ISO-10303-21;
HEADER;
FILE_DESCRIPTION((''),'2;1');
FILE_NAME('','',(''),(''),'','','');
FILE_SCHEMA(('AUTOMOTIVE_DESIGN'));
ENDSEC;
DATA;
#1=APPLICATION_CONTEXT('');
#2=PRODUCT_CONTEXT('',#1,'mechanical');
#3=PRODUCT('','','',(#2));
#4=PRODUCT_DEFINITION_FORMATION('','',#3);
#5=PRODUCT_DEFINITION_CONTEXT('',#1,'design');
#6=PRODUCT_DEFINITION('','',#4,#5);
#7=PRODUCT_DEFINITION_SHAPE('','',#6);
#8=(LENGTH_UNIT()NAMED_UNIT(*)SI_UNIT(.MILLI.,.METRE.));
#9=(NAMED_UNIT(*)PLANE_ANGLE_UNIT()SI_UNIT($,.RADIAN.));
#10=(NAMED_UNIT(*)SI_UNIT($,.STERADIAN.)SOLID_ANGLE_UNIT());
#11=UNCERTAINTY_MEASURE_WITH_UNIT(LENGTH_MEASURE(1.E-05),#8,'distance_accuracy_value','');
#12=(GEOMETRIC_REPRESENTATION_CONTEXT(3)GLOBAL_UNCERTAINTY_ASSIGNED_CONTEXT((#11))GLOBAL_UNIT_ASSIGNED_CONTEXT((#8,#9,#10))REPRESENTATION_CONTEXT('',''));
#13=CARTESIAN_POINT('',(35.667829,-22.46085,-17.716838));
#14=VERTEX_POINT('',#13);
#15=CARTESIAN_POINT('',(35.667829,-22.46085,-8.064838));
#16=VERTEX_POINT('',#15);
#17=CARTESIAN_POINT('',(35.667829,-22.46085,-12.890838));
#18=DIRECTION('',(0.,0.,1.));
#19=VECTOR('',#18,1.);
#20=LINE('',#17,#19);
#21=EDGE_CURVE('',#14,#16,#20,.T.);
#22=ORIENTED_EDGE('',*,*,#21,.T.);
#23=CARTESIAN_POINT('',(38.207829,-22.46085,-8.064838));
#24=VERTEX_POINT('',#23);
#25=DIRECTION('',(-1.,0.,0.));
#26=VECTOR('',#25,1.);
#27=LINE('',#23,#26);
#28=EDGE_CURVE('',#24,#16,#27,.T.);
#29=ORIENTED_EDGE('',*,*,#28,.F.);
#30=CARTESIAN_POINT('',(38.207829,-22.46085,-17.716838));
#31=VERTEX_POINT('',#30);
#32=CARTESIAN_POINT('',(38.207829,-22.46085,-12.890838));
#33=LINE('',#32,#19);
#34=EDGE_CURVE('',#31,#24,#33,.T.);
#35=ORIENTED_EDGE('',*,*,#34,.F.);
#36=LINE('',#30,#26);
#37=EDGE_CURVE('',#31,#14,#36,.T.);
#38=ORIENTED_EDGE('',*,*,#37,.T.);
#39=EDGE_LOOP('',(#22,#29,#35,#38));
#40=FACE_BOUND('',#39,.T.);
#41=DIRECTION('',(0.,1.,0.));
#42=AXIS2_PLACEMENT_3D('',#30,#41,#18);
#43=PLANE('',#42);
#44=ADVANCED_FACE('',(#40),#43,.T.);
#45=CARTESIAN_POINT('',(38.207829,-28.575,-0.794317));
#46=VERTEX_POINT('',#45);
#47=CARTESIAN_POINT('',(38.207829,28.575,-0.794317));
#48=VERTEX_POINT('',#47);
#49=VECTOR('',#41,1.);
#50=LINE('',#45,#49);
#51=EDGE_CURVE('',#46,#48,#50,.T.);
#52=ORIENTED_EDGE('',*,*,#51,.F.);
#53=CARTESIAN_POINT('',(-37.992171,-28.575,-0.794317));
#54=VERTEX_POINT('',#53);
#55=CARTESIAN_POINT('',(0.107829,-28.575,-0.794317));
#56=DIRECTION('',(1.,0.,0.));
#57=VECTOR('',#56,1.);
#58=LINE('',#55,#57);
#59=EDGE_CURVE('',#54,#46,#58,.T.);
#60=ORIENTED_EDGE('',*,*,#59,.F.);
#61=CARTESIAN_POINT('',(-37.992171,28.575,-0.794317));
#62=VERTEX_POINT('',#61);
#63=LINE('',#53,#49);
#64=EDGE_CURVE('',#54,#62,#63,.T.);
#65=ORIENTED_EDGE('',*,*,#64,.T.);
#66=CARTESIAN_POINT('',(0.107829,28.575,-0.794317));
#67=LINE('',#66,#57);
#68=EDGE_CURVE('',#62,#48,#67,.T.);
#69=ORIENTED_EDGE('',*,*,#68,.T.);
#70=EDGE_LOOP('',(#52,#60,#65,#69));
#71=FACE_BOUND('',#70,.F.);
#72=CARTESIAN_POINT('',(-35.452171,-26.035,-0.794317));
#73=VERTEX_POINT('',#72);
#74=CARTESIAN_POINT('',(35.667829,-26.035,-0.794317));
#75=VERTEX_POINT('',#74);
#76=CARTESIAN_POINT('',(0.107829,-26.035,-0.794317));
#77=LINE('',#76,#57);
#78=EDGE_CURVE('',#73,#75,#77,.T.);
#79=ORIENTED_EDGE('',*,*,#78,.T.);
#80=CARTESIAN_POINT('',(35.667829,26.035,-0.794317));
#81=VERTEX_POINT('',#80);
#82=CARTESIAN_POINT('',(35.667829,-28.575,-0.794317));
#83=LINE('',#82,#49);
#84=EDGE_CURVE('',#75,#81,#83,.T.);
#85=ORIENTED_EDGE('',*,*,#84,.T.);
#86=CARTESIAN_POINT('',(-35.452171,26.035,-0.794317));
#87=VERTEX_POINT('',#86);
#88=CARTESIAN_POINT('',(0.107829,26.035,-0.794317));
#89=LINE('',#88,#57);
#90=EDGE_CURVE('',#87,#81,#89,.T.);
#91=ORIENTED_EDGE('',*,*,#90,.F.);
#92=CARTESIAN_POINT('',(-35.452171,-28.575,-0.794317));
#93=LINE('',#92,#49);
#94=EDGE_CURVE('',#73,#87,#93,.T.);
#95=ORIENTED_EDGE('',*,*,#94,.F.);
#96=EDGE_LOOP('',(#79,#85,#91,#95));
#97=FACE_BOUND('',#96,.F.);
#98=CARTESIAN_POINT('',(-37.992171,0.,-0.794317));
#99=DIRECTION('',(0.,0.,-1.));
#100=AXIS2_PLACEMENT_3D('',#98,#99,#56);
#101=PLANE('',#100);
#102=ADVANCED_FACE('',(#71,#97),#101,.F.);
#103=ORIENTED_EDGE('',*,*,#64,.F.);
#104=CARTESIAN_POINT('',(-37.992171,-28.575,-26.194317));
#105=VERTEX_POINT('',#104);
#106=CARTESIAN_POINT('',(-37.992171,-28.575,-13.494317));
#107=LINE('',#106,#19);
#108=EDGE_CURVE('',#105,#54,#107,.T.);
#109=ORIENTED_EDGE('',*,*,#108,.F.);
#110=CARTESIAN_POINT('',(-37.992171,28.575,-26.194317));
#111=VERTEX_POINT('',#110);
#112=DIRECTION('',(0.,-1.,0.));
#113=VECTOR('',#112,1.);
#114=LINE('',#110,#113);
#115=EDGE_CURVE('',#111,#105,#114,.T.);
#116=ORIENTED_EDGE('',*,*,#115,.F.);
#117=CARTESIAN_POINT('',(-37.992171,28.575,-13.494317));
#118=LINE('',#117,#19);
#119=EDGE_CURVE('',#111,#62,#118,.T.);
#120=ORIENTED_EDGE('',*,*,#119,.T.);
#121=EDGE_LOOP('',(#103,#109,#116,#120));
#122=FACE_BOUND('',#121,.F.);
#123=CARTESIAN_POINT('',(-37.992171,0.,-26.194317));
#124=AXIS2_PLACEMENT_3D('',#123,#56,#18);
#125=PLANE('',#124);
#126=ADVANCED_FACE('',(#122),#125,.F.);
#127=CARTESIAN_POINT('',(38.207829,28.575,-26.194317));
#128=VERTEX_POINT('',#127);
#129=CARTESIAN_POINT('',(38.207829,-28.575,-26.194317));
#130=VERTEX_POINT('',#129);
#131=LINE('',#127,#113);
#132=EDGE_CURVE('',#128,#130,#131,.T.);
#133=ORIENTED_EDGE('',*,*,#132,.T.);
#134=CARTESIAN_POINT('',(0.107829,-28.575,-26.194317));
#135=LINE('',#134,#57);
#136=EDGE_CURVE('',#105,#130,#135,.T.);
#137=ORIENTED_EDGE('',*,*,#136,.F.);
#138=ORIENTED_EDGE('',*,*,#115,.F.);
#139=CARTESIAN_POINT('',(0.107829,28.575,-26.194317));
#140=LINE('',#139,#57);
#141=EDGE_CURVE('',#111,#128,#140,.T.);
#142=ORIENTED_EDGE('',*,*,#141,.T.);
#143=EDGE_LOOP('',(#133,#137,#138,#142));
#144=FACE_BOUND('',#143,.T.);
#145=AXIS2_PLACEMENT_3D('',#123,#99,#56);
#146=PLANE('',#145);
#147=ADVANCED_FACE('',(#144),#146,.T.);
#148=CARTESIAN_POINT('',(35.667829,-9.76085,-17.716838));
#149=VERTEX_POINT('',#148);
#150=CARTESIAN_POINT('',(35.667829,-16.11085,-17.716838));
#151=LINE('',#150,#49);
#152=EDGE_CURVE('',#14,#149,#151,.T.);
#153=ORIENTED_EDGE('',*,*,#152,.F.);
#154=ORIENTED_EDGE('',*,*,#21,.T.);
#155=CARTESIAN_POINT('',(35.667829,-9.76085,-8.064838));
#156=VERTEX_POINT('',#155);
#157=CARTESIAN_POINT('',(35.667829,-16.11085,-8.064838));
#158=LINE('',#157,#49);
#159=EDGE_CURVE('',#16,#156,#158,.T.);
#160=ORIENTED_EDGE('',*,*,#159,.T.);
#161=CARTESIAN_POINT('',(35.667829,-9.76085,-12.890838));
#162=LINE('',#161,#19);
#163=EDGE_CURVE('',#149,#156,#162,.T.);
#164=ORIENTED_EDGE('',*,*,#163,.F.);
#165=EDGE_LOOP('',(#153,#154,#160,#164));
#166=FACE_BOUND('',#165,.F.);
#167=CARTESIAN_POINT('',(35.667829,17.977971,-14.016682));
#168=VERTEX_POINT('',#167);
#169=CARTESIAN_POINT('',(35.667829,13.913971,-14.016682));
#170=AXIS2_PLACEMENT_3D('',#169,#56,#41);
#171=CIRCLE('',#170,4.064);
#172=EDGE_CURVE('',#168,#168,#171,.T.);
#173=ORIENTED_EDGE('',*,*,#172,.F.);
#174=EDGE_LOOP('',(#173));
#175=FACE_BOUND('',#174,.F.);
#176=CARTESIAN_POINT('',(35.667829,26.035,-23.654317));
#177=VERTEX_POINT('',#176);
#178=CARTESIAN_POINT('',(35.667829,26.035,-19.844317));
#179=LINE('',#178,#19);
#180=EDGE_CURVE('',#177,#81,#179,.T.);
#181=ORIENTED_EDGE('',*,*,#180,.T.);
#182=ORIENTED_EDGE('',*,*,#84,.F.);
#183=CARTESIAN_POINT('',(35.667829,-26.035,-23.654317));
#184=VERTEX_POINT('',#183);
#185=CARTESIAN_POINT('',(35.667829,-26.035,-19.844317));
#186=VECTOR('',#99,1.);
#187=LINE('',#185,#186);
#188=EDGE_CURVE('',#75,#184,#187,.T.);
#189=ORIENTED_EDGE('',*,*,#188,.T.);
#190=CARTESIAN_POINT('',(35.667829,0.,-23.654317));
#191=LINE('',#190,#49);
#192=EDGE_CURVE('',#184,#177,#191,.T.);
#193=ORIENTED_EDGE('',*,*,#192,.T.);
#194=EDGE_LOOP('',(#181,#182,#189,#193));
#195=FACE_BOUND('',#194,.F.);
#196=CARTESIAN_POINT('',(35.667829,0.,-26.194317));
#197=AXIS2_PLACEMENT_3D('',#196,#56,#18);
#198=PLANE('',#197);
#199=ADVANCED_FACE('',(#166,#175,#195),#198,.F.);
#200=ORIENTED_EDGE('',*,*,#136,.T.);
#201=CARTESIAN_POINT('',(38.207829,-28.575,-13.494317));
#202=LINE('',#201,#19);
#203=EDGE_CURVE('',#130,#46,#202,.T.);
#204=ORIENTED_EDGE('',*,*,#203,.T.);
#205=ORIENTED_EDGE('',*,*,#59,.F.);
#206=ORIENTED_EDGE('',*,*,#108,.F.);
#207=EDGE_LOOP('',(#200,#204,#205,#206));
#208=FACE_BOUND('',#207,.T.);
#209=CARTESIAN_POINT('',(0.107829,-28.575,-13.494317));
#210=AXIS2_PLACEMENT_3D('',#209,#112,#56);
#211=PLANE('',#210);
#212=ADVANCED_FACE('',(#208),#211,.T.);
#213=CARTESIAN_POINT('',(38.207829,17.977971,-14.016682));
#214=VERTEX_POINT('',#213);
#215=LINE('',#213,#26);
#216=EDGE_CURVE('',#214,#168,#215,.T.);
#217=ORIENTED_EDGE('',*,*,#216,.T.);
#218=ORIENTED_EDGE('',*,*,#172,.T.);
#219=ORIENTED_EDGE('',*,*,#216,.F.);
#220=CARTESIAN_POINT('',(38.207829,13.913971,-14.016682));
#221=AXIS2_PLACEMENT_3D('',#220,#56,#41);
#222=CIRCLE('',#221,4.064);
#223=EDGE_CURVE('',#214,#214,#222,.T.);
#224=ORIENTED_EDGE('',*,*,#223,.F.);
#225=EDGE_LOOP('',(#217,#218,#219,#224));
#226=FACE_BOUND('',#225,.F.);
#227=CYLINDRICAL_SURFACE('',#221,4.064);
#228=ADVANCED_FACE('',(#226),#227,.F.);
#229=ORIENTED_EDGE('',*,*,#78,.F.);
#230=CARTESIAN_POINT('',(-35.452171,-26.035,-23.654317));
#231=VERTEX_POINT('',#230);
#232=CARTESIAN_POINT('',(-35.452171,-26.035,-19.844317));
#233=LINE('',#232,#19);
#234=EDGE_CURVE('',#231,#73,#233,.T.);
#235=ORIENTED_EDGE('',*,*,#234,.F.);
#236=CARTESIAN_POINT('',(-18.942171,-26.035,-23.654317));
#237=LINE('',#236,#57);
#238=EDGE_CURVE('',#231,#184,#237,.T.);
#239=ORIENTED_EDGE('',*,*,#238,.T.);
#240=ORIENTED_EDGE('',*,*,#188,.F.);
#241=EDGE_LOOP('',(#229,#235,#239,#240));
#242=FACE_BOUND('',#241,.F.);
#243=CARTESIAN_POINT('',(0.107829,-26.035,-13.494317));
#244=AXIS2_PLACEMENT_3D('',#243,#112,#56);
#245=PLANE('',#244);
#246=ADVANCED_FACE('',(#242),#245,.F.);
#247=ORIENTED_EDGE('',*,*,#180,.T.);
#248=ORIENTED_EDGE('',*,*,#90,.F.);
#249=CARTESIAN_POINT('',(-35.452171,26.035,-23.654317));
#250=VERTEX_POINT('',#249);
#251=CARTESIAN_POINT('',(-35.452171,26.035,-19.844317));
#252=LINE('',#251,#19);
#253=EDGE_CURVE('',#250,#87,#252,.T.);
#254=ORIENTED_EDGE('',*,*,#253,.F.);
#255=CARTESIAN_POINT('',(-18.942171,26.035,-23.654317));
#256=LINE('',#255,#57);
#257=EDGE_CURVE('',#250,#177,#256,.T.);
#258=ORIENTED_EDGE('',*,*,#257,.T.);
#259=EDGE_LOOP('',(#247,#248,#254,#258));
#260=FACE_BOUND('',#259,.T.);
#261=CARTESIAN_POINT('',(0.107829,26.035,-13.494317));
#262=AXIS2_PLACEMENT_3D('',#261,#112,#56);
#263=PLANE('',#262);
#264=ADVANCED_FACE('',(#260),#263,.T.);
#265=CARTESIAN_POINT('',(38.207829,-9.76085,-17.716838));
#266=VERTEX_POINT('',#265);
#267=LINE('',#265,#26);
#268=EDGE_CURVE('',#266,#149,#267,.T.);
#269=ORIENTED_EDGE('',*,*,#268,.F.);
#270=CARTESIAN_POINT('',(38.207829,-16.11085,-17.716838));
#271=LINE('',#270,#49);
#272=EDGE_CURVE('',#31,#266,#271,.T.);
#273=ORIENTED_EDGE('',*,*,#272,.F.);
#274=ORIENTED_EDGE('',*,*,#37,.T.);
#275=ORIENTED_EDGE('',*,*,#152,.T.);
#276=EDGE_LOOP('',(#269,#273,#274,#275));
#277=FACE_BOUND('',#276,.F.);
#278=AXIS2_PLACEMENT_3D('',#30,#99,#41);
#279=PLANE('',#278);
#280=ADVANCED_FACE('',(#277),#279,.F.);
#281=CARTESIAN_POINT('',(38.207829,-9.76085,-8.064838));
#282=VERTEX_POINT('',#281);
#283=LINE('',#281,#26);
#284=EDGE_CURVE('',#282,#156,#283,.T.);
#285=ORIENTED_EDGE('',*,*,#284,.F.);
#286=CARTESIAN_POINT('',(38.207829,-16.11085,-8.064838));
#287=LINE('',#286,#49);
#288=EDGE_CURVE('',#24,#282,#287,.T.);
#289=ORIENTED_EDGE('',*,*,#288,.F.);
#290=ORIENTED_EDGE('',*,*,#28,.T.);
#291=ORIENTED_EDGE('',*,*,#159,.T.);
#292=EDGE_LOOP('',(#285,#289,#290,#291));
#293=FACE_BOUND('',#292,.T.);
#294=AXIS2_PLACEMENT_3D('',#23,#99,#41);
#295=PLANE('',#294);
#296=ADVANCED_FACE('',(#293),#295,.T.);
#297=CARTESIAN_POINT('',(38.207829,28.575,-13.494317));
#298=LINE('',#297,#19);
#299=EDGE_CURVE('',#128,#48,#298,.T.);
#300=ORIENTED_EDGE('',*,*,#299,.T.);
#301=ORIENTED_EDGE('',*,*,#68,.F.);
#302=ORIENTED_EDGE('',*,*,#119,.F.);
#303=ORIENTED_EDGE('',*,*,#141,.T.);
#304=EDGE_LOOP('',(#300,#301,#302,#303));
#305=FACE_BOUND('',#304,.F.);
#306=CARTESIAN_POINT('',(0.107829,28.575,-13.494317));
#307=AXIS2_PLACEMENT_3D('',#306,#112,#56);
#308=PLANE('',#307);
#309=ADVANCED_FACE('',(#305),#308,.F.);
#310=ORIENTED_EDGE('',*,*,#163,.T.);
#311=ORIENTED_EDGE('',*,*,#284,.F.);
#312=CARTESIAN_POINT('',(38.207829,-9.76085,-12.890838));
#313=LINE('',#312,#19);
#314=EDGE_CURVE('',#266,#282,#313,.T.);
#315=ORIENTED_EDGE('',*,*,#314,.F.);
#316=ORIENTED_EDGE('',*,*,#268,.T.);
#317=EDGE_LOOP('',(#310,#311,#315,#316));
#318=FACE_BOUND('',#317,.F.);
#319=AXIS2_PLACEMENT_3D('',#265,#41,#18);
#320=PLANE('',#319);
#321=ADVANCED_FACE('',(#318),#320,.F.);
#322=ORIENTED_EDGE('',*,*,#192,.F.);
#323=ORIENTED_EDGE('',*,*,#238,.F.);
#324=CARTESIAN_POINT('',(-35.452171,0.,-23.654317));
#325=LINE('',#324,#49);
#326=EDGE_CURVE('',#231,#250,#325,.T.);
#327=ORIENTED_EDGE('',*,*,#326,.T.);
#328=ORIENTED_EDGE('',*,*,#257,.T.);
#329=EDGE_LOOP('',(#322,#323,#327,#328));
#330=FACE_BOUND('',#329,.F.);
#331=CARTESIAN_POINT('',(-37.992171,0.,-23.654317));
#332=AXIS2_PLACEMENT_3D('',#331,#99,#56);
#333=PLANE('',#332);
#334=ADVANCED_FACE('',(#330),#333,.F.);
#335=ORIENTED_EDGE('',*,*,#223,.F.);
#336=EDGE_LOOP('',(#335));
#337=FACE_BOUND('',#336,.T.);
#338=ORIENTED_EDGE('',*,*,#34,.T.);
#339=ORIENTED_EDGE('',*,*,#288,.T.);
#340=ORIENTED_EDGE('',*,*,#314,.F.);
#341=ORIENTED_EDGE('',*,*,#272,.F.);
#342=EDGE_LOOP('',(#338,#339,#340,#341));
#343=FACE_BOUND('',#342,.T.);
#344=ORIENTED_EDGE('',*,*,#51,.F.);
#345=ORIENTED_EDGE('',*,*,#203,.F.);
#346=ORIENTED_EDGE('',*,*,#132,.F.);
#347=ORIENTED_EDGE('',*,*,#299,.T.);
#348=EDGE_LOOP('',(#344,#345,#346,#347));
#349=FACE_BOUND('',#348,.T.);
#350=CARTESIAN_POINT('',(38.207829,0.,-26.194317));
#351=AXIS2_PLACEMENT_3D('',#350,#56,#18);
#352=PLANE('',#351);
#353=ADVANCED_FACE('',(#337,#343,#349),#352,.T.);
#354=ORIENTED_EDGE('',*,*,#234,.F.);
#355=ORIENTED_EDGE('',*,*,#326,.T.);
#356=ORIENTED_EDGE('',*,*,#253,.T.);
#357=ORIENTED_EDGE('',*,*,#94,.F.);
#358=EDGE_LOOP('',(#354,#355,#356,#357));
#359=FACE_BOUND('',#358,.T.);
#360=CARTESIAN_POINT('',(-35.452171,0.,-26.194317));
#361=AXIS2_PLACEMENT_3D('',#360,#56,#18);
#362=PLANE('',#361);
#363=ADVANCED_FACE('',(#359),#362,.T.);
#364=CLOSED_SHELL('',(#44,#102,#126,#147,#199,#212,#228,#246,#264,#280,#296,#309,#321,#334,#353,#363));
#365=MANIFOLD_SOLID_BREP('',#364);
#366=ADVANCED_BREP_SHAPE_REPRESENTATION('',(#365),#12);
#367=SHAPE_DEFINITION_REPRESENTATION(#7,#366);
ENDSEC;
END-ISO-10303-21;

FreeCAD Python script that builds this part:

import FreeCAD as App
import Part
import Sketcher
Q = App.Units.Quantity


def faces_at(feature, points):
    """Names of the faces that lie closest to the given points."""
    faces = feature.Shape.Faces
    near = lambda p: min(range(len(faces)), key=lambda i: faces[i].distToShape(Part.Vertex(*p))[0])
    return sorted({f"Face{near(p) + 1}" for p in points})

doc = App.newDocument("Part")
body = doc.addObject("PartDesign::Body", "Body")

# Sketch on XZ plane
sketch1 = body.newObject("Sketcher::SketchObject", "Sketch")
sketch1.AttachmentSupport = (doc.getObject("XZ_Plane"), [""])
sketch1.MapMode = "FlatFace"
sketch1.addGeometry(Part.LineSegment(App.Vector(-38, -1, 0), App.Vector(-38, -26, 0)), False)
sketch1.addGeometry(Part.LineSegment(App.Vector(-38, -26, 0), App.Vector(38, -26, 0)), False)
sketch1.addGeometry(Part.LineSegment(App.Vector(38, -26, 0), App.Vector(38, -1, 0)), False)
sketch1.addGeometry(Part.LineSegment(App.Vector(38, -1, 0), App.Vector(-38, -1, 0)), False)
sketch1.addConstraint(Sketcher.Constraint("Coincident", 0, 2, 1, 1))
sketch1.addConstraint(Sketcher.Constraint("Coincident", 1, 2, 2, 1))
sketch1.addConstraint(Sketcher.Constraint("Coincident", 2, 2, 3, 1))
sketch1.addConstraint(Sketcher.Constraint("Coincident", 3, 2, 0, 1))
sketch1.addConstraint(Sketcher.Constraint("Vertical", 0))
sketch1.addConstraint(Sketcher.Constraint("Horizontal", 1))
sketch1.addConstraint(Sketcher.Constraint("Vertical", 2))
sketch1.addConstraint(Sketcher.Constraint("Horizontal", 3))
sketch1.addConstraint(Sketcher.Constraint("DistanceX", 1, 1, 1, 2, Q("3 in")))
sketch1.addConstraint(Sketcher.Constraint("DistanceY", 0, 2, 0, 1, Q("1 in")))
sketch1.addConstraint(Sketcher.Constraint("DistanceX", 0, 2, -1, 1, Q("37.992171 mm")))
sketch1.addConstraint(Sketcher.Constraint("DistanceY", 0, 2, -1, 1, Q("26.194317 mm")))
pad1 = body.newObject("PartDesign::Pad", "Pad")
pad1.Profile = sketch1
pad1.Length = Q("2.25 in")
pad1.Midplane = True
doc.recompute()

thickness = body.newObject("PartDesign::Thickness", "Thickness")
thickness.Base = (pad1, faces_at(pad1, [(0.108, 0, -0.794)]))
thickness.Value = Q("0.1 in")
thickness.Reversed = True
thickness.Join = "Arc"

# Sketch on YZ plane
sketch2 = body.newObject("Sketcher::SketchObject", "Sketch001")
sketch2.AttachmentSupport = (doc.getObject("YZ_Plane"), [""])
sketch2.MapMode = "FlatFace"
sketch2.AttachmentOffset = App.Placement(App.Vector(0, 0, 38.207829), App.Rotation())
sketch2.addGeometry(Part.Circle(App.Vector(13.9, -14, 0), App.Vector(0, 0, 1), 4.1), False)
sketch2.addConstraint(Sketcher.Constraint("Diameter", 0, Q("0.32 in")))
sketch2.addConstraint(Sketcher.Constraint("DistanceX", -1, 1, 0, 3, Q("13.913971 mm")))
sketch2.addConstraint(Sketcher.Constraint("DistanceY", 0, 3, -1, 1, Q("14.016682 mm")))
pocket1 = body.newObject("PartDesign::Pocket", "Pocket")
pocket1.Profile = sketch2
pocket1.Length = Q("0.1 in")

# Sketch on YZ plane
sketch3 = body.newObject("Sketcher::SketchObject", "Sketch002")
sketch3.AttachmentSupport = (doc.getObject("YZ_Plane"), [""])
sketch3.MapMode = "FlatFace"
sketch3.AttachmentOffset = App.Placement(App.Vector(0, 0, 38.207829), App.Rotation())
sketch3.addGeometry(Part.LineSegment(App.Vector(-22, -8, 0), App.Vector(-22, -18, 0)), False)
sketch3.addGeometry(Part.LineSegment(App.Vector(-22, -18, 0), App.Vector(-10, -18, 0)), False)
sketch3.addGeometry(Part.LineSegment(App.Vector(-10, -18, 0), App.Vector(-10, -8, 0)), False)
sketch3.addGeometry(Part.LineSegment(App.Vector(-10, -8, 0), App.Vector(-22, -8, 0)), False)
sketch3.addConstraint(Sketcher.Constraint("Coincident", 0, 2, 1, 1))
sketch3.addConstraint(Sketcher.Constraint("Coincident", 1, 2, 2, 1))
sketch3.addConstraint(Sketcher.Constraint("Coincident", 2, 2, 3, 1))
sketch3.addConstraint(Sketcher.Constraint("Coincident", 3, 2, 0, 1))
sketch3.addConstraint(Sketcher.Constraint("Vertical", 0))
sketch3.addConstraint(Sketcher.Constraint("Horizontal", 1))
sketch3.addConstraint(Sketcher.Constraint("Vertical", 2))
sketch3.addConstraint(Sketcher.Constraint("Horizontal", 3))
sketch3.addConstraint(Sketcher.Constraint("DistanceX", 1, 1, 1, 2, Q("0.5 in")))
sketch3.addConstraint(Sketcher.Constraint("DistanceY", 0, 2, 0, 1, Q("0.38 in")))
sketch3.addConstraint(Sketcher.Constraint("DistanceX", 0, 2, -1, 1, Q("22.46085 mm")))
sketch3.addConstraint(Sketcher.Constraint("DistanceY", 0, 2, -1, 1, Q("17.716838 mm")))
pocket2 = body.newObject("PartDesign::Pocket", "Pocket001")
pocket2.Profile = sketch3
pocket2.Length = Q("0.1 in")

doc.recompute()
